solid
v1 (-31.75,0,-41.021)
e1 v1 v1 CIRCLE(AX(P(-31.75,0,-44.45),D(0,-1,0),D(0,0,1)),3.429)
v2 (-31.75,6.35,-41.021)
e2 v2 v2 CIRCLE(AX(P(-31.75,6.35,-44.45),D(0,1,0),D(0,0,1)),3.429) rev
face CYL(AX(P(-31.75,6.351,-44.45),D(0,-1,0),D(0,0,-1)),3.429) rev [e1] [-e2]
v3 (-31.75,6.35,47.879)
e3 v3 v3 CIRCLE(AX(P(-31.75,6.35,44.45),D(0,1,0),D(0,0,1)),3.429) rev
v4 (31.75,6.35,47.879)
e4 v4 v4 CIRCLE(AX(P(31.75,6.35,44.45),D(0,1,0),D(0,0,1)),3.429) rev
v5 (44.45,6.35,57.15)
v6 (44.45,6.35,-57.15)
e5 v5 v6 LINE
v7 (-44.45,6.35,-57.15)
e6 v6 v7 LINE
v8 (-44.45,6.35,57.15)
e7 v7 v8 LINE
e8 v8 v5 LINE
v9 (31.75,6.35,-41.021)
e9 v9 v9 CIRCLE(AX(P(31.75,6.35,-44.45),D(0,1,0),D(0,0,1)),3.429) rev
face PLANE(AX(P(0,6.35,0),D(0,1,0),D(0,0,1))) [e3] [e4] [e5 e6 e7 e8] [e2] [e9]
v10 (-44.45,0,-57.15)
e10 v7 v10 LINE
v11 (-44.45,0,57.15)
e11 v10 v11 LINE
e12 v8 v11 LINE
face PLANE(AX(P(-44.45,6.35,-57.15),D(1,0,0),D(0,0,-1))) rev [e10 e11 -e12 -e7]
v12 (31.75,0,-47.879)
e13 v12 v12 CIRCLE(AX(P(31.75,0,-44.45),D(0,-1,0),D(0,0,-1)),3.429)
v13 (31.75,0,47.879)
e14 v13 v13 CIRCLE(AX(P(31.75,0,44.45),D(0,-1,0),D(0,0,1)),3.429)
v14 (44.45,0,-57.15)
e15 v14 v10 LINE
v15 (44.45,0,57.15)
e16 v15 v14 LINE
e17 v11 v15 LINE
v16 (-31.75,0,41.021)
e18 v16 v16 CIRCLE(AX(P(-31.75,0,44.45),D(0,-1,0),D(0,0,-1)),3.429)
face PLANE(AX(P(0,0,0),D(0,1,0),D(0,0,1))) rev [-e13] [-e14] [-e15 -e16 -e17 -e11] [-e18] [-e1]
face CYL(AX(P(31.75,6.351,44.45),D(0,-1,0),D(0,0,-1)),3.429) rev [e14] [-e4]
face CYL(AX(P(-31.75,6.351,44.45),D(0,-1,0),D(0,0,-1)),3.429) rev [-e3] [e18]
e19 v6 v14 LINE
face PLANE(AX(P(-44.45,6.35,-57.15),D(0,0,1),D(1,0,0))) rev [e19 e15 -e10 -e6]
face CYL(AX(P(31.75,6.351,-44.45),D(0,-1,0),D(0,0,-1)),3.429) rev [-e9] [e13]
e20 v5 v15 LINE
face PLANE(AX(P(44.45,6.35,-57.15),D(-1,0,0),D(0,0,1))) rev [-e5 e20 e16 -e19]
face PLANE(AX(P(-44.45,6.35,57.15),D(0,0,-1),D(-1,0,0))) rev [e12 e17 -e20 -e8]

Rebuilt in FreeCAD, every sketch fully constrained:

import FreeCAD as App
import Part
import Sketcher
from FreeCAD import Vector
Q = App.Units.Quantity

doc = App.newDocument("Part")
body = doc.addObject("PartDesign::Body", "Body")

sketch1 = body.newObject("Sketcher::SketchObject", "Sketch")
sketch1.AttachmentSupport = (doc.getObject("XZ_Plane"), [""])
sketch1.MapMode = "FlatFace"
sketch1.addGeometry(Part.LineSegment(Vector(-44.45, -57.15, 0), Vector(-44.45, 57.15, 0)), False)
sketch1.addGeometry(Part.LineSegment(Vector(-44.45, 57.15, 0), Vector(44.45, 57.15, 0)), False)
sketch1.addGeometry(Part.LineSegment(Vector(44.45, 57.15, 0), Vector(44.45, -57.15, 0)), False)
sketch1.addGeometry(Part.LineSegment(Vector(44.45, -57.15, 0), Vector(-44.45, -57.15, 0)), False)
sketch1.addConstraint(Sketcher.Constraint("Coincident", 0, 2, 1, 1))
sketch1.addConstraint(Sketcher.Constraint("Coincident", 1, 2, 2, 1))
sketch1.addConstraint(Sketcher.Constraint("Coincident", 2, 2, 3, 1))
sketch1.addConstraint(Sketcher.Constraint("Coincident", 3, 2, 0, 1))
sketch1.addConstraint(Sketcher.Constraint("Vertical", 0))
sketch1.addConstraint(Sketcher.Constraint("Horizontal", 1))
sketch1.addConstraint(Sketcher.Constraint("Vertical", 2))
sketch1.addConstraint(Sketcher.Constraint("Horizontal", 3))
sketch1.addConstraint(Sketcher.Constraint("Symmetric", 0, 2, 2, 2, -1, 1))
sketch1.addConstraint(Sketcher.Constraint("DistanceX", 1, 1, 1, 2, Q("3.5 in")))
sketch1.addConstraint(Sketcher.Constraint("DistanceY", 0, 1, 0, 2, Q("4.5 in")))
pad1 = body.newObject("PartDesign::Pad", "Pad")
pad1.Profile = sketch1
pad1.Length = Q("0.25 in")
pad1.Reversed = True

sketch2 = body.newObject("Sketcher::SketchObject", "Sketch001")
sketch2.AttachmentSupport = (doc.getObject("XZ_Plane"), [""])
sketch2.MapMode = "FlatFace"
sketch2.addGeometry(Part.Circle(Vector(-31.75, 44.45, 0), Vector(0, 0, 1), 3.429), False)
sketch2.addConstraint(Sketcher.Constraint("Diameter", 0, Q("0.27 in")))
sketch2.addConstraint(Sketcher.Constraint("DistanceX", 0, 3, -1, 1, Q("1.25 in")))
sketch2.addConstraint(Sketcher.Constraint("DistanceY", -1, 1, 0, 3, Q("1.75 in")))
pocket1 = body.newObject("PartDesign::Pocket", "Pocket")
pocket1.Profile = sketch2
pocket1.Type = "UpToFirst"

sketch3 = body.newObject("Sketcher::SketchObject", "Sketch002")
sketch3.AttachmentSupport = (doc.getObject("XZ_Plane"), [""])
sketch3.MapMode = "FlatFace"
sketch3.addGeometry(Part.Circle(Vector(-31.75, -44.45, 0), Vector(0, 0, 1), 3.429), False)
sketch3.addConstraint(Sketcher.Constraint("Diameter", 0, Q("0.27 in")))
sketch3.addConstraint(Sketcher.Constraint("DistanceX", 0, 3, -1, 1, Q("1.25 in")))
sketch3.addConstraint(Sketcher.Constraint("DistanceY", 0, 3, -1, 1, Q("1.75 in")))
pocket2 = body.newObject("PartDesign::Pocket", "Pocket001")
pocket2.Profile = sketch3
pocket2.Type = "UpToFirst"

sketch4 = body.newObject("Sketcher::SketchObject", "Sketch003")
sketch4.AttachmentSupport = (doc.getObject("XZ_Plane"), [""])
sketch4.MapMode = "FlatFace"
sketch4.addGeometry(Part.Circle(Vector(31.75, 44.45, 0), Vector(0, 0, 1), 3.429), False)
sketch4.addConstraint(Sketcher.Constraint("Diameter", 0, Q("0.27 in")))
sketch4.addConstraint(Sketcher.Constraint("DistanceX", -1, 1, 0, 3, Q("1.25 in")))
sketch4.addConstraint(Sketcher.Constraint("DistanceY", -1, 1, 0, 3, Q("1.75 in")))
pocket3 = body.newObject("PartDesign::Pocket", "Pocket002")
pocket3.Profile = sketch4
pocket3.Type = "UpToFirst"

sketch5 = body.newObject("Sketcher::SketchObject", "Sketch004")
sketch5.AttachmentSupport = (doc.getObject("XZ_Plane"), [""])
sketch5.MapMode = "FlatFace"
sketch5.addGeometry(Part.Circle(Vector(31.75, -44.45, 0), Vector(0, 0, 1), 3.429), False)
sketch5.addConstraint(Sketcher.Constraint("Diameter", 0, Q("0.27 in")))
sketch5.addConstraint(Sketcher.Constraint("DistanceX", -1, 1, 0, 3, Q("1.25 in")))
sketch5.addConstraint(Sketcher.Constraint("DistanceY", 0, 3, -1, 1, Q("1.75 in")))
pocket4 = body.newObject("PartDesign::Pocket", "Pocket003")
pocket4.Profile = sketch5
pocket4.Type = "UpToFirst"

doc.recompute()
